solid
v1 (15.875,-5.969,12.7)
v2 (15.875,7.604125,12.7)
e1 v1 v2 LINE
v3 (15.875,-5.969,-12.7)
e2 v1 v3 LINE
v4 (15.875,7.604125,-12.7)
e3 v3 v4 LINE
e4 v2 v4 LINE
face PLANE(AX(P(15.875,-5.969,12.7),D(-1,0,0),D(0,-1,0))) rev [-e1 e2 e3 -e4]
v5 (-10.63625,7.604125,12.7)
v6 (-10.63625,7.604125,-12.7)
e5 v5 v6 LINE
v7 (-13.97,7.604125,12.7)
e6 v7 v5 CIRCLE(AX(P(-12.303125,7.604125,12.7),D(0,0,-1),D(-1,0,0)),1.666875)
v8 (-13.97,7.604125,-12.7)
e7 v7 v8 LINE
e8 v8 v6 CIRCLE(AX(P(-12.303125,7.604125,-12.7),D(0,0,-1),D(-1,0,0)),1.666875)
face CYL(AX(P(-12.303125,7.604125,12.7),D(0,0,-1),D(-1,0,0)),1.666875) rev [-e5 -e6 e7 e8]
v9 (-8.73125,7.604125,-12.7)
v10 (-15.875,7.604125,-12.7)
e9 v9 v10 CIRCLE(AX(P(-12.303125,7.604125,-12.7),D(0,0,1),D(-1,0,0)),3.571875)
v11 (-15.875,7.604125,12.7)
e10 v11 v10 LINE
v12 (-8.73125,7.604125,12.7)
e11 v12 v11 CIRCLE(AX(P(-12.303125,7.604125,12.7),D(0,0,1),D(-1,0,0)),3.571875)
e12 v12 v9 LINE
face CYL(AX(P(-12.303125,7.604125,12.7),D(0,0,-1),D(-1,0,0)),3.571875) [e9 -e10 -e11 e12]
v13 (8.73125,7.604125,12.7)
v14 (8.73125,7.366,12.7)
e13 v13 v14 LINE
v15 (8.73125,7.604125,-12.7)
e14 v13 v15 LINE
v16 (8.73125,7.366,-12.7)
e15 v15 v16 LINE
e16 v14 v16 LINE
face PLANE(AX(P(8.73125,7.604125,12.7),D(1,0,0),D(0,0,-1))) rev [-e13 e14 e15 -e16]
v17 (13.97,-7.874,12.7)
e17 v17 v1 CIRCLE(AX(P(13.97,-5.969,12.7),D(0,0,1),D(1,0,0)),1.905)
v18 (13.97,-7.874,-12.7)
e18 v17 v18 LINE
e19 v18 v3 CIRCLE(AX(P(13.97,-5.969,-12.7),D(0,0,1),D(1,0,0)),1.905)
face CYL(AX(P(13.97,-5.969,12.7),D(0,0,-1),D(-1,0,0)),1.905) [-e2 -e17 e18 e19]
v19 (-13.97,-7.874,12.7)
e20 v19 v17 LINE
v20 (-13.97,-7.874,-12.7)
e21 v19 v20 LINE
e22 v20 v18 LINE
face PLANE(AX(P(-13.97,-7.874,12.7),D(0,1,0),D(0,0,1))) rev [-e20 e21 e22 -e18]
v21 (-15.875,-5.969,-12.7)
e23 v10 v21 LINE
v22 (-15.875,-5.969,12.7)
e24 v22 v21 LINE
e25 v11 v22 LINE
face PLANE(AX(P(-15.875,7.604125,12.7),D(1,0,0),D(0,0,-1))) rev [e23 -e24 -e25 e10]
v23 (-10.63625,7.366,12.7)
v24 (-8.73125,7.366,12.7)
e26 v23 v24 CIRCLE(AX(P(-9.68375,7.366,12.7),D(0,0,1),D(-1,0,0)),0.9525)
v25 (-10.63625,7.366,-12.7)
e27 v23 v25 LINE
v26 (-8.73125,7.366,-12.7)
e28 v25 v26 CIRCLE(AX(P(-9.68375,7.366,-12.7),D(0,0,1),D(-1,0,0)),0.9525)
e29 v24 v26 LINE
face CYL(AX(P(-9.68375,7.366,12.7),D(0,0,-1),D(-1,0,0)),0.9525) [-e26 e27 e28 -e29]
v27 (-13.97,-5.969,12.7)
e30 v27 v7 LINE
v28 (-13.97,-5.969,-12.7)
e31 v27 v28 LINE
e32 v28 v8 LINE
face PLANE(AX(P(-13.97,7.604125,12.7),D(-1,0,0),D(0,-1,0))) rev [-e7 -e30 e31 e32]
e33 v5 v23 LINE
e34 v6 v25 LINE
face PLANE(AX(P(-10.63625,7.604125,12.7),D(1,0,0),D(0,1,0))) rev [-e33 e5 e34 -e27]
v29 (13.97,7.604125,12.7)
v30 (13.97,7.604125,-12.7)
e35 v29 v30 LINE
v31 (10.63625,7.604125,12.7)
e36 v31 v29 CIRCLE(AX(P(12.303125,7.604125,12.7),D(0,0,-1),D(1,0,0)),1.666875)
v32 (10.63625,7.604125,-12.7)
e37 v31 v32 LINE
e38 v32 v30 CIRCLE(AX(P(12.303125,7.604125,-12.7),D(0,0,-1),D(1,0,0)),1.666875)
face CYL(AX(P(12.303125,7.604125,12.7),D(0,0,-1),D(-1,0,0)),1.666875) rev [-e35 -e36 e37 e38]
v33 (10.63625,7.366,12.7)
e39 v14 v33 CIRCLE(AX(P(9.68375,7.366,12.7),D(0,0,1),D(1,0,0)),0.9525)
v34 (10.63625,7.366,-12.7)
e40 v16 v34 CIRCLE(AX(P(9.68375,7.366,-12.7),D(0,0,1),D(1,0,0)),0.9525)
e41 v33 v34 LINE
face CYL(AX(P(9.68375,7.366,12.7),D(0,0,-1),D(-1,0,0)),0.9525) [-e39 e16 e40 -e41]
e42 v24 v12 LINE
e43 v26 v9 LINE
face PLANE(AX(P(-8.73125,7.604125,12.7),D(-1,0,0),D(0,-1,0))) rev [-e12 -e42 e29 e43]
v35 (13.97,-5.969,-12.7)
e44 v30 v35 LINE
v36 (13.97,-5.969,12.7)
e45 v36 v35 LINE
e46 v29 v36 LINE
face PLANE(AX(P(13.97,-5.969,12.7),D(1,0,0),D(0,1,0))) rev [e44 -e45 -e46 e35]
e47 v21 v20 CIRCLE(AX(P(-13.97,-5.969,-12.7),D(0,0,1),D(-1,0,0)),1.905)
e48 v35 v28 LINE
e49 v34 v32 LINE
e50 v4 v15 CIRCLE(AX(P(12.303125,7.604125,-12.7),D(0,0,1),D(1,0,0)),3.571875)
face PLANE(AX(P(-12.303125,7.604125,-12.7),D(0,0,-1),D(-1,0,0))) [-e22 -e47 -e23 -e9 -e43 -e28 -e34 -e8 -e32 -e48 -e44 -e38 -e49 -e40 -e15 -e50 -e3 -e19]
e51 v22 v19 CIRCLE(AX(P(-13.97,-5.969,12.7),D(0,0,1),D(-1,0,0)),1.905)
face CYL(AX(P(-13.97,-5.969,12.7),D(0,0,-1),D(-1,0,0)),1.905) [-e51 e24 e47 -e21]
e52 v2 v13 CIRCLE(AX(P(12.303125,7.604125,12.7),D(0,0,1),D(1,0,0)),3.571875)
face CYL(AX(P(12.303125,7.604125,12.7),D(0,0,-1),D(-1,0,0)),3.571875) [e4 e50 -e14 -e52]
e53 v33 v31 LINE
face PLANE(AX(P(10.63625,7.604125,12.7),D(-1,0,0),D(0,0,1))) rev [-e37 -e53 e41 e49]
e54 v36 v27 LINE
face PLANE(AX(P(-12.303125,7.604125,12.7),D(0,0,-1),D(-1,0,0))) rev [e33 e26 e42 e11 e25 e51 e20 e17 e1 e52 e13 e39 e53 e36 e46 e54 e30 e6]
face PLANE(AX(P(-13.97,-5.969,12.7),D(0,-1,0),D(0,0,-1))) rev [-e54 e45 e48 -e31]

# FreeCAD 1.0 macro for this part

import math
import FreeCAD as App
import Part
import Sketcher
Q = App.Units.Quantity

doc = App.newDocument("Part")
body = doc.addObject("PartDesign::Body", "Body")

# Sketch on XY plane
sketch1 = body.newObject("Sketcher::SketchObject", "Sketch")
sketch1.AttachmentSupport = (doc.getObject("XY_Plane"), [""])
sketch1.MapMode = "FlatFace"
sketch1.addGeometry([
    Part.LineSegment(App.Vector(-15.88, 7.6, 0), App.Vector(-15.88, -5.97, 0)),  # 0
    Part.ArcOfCircle(Part.Circle(App.Vector(-13.97, -5.97, 0), App.Vector(0, 0, 1), 1.91), math.radians(-180), math.radians(-90)),  # 1
    Part.LineSegment(App.Vector(-13.97, -7.87, 0), App.Vector(13.97, -7.87, 0)),  # 2
    Part.ArcOfCircle(Part.Circle(App.Vector(13.97, -5.97, 0), App.Vector(0, 0, 1), 1.91), math.radians(-90), math.radians(0)),  # 3
    Part.LineSegment(App.Vector(15.88, -5.97, 0), App.Vector(15.88, 7.6, 0)),  # 4
    Part.ArcOfCircle(Part.Circle(App.Vector(12.3, 7.6, 0), App.Vector(0, 0, 1), 3.57), math.radians(0), math.radians(180)),  # 5
    Part.LineSegment(App.Vector(8.73, 7.6, 0), App.Vector(8.73, 7.37, 0)),  # 6
    Part.ArcOfCircle(Part.Circle(App.Vector(9.68, 7.37, 0), App.Vector(0, 0, 1), 0.95), math.radians(180), math.radians(360)),  # 7
    Part.LineSegment(App.Vector(10.64, 7.37, 0), App.Vector(10.64, 7.6, 0)),  # 8
    Part.ArcOfCircle(Part.Circle(App.Vector(12.3, 7.6, 0), App.Vector(0, 0, 1), 1.67), math.radians(0), math.radians(180)),  # 9
    Part.LineSegment(App.Vector(13.97, 7.6, 0), App.Vector(13.97, -5.97, 0)),  # 10
    Part.LineSegment(App.Vector(13.97, -5.97, 0), App.Vector(-13.97, -5.97, 0)),  # 11
    Part.LineSegment(App.Vector(-13.97, -5.97, 0), App.Vector(-13.97, 7.6, 0)),  # 12
    Part.ArcOfCircle(Part.Circle(App.Vector(-12.3, 7.6, 0), App.Vector(0, 0, 1), 1.67), math.radians(0), math.radians(180)),  # 13
    Part.LineSegment(App.Vector(-10.64, 7.6, 0), App.Vector(-10.64, 7.37, 0)),  # 14
    Part.ArcOfCircle(Part.Circle(App.Vector(-9.68, 7.37, 0), App.Vector(0, 0, 1), 0.95), math.radians(180), math.radians(360)),  # 15
    Part.LineSegment(App.Vector(-8.73, 7.37, 0), App.Vector(-8.73, 7.6, 0)),  # 16
    Part.ArcOfCircle(Part.Circle(App.Vector(-12.3, 7.6, 0), App.Vector(0, 0, 1), 3.57), math.radians(0), math.radians(180)),  # 17
], False)
sketch1.addConstraint([
    Sketcher.Constraint("Tangent", 0, 2, 1, 1),
    Sketcher.Constraint("Tangent", 1, 2, 2, 1),
    Sketcher.Constraint("Tangent", 2, 2, 3, 1),
    Sketcher.Constraint("Tangent", 3, 2, 4, 1),
    Sketcher.Constraint("Tangent", 4, 2, 5, 1),
    Sketcher.Constraint("Tangent", 5, 2, 6, 1),
    Sketcher.Constraint("Tangent", 6, 2, 7, 1),
    Sketcher.Constraint("Tangent", 7, 2, 8, 1),
    Sketcher.Constraint("Tangent", 8, 2, 9, 2),
    Sketcher.Constraint("Tangent", 9, 1, 10, 1),
    Sketcher.Constraint("Coincident", 10, 2, 11, 1),
    Sketcher.Constraint("Coincident", 11, 2, 12, 1),
    Sketcher.Constraint("Tangent", 12, 2, 13, 2),
    Sketcher.Constraint("Tangent", 13, 1, 14, 1),
    Sketcher.Constraint("Tangent", 14, 2, 15, 1),
    Sketcher.Constraint("Tangent", 15, 2, 16, 1),
    Sketcher.Constraint("Tangent", 16, 2, 17, 1),
    Sketcher.Constraint("Tangent", 17, 2, 0, 1),
    Sketcher.Constraint("Vertical", 0),
    Sketcher.Constraint("Horizontal", 2),
    Sketcher.Constraint("Vertical", 4),
    Sketcher.Constraint("Vertical", 6),
    Sketcher.Constraint("Vertical", 8),
    Sketcher.Constraint("Vertical", 10),
    Sketcher.Constraint("Horizontal", 11),
    Sketcher.Constraint("Vertical", 12),
    Sketcher.Constraint("Vertical", 14),
    Sketcher.Constraint("Vertical", 16),
    Sketcher.Constraint("Coincident", 9, 3, 5, 3),
    Sketcher.Constraint("Coincident", 17, 3, 13, 3),
    Sketcher.Constraint("Coincident", 10, 2, 3, 3),
    Sketcher.Constraint("Coincident", 11, 2, 1, 3),
    Sketcher.Constraint("Equal", 9, 13),
    Sketcher.Constraint("Symmetric", 5, 3, 13, 3, -2),
    Sketcher.Constraint("Horizontal", 7, 3, 15, 3),
    Sketcher.Constraint("DistanceX", 2, 1, 2, 2, Q("1.1 in")),
    Sketcher.Constraint("Radius", 1, Q("0.075 in")),
    Sketcher.Constraint("Radius", 5, Q("0.140625 in")),
    Sketcher.Constraint("DistanceY", 1, 2, 15, 3, Q("0.6 in")),
    Sketcher.Constraint("DistanceY", -1, 1, 7, 3, Q("0.29 in")),
    Sketcher.Constraint("DistanceY", 1, 2, 13, 3, Q("0.609375 in")),
])
pad1 = body.newObject("PartDesign::Pad", "Pad")
pad1.Profile = sketch1
pad1.Length = Q("1 in")
pad1.Midplane = True

doc.recompute()
